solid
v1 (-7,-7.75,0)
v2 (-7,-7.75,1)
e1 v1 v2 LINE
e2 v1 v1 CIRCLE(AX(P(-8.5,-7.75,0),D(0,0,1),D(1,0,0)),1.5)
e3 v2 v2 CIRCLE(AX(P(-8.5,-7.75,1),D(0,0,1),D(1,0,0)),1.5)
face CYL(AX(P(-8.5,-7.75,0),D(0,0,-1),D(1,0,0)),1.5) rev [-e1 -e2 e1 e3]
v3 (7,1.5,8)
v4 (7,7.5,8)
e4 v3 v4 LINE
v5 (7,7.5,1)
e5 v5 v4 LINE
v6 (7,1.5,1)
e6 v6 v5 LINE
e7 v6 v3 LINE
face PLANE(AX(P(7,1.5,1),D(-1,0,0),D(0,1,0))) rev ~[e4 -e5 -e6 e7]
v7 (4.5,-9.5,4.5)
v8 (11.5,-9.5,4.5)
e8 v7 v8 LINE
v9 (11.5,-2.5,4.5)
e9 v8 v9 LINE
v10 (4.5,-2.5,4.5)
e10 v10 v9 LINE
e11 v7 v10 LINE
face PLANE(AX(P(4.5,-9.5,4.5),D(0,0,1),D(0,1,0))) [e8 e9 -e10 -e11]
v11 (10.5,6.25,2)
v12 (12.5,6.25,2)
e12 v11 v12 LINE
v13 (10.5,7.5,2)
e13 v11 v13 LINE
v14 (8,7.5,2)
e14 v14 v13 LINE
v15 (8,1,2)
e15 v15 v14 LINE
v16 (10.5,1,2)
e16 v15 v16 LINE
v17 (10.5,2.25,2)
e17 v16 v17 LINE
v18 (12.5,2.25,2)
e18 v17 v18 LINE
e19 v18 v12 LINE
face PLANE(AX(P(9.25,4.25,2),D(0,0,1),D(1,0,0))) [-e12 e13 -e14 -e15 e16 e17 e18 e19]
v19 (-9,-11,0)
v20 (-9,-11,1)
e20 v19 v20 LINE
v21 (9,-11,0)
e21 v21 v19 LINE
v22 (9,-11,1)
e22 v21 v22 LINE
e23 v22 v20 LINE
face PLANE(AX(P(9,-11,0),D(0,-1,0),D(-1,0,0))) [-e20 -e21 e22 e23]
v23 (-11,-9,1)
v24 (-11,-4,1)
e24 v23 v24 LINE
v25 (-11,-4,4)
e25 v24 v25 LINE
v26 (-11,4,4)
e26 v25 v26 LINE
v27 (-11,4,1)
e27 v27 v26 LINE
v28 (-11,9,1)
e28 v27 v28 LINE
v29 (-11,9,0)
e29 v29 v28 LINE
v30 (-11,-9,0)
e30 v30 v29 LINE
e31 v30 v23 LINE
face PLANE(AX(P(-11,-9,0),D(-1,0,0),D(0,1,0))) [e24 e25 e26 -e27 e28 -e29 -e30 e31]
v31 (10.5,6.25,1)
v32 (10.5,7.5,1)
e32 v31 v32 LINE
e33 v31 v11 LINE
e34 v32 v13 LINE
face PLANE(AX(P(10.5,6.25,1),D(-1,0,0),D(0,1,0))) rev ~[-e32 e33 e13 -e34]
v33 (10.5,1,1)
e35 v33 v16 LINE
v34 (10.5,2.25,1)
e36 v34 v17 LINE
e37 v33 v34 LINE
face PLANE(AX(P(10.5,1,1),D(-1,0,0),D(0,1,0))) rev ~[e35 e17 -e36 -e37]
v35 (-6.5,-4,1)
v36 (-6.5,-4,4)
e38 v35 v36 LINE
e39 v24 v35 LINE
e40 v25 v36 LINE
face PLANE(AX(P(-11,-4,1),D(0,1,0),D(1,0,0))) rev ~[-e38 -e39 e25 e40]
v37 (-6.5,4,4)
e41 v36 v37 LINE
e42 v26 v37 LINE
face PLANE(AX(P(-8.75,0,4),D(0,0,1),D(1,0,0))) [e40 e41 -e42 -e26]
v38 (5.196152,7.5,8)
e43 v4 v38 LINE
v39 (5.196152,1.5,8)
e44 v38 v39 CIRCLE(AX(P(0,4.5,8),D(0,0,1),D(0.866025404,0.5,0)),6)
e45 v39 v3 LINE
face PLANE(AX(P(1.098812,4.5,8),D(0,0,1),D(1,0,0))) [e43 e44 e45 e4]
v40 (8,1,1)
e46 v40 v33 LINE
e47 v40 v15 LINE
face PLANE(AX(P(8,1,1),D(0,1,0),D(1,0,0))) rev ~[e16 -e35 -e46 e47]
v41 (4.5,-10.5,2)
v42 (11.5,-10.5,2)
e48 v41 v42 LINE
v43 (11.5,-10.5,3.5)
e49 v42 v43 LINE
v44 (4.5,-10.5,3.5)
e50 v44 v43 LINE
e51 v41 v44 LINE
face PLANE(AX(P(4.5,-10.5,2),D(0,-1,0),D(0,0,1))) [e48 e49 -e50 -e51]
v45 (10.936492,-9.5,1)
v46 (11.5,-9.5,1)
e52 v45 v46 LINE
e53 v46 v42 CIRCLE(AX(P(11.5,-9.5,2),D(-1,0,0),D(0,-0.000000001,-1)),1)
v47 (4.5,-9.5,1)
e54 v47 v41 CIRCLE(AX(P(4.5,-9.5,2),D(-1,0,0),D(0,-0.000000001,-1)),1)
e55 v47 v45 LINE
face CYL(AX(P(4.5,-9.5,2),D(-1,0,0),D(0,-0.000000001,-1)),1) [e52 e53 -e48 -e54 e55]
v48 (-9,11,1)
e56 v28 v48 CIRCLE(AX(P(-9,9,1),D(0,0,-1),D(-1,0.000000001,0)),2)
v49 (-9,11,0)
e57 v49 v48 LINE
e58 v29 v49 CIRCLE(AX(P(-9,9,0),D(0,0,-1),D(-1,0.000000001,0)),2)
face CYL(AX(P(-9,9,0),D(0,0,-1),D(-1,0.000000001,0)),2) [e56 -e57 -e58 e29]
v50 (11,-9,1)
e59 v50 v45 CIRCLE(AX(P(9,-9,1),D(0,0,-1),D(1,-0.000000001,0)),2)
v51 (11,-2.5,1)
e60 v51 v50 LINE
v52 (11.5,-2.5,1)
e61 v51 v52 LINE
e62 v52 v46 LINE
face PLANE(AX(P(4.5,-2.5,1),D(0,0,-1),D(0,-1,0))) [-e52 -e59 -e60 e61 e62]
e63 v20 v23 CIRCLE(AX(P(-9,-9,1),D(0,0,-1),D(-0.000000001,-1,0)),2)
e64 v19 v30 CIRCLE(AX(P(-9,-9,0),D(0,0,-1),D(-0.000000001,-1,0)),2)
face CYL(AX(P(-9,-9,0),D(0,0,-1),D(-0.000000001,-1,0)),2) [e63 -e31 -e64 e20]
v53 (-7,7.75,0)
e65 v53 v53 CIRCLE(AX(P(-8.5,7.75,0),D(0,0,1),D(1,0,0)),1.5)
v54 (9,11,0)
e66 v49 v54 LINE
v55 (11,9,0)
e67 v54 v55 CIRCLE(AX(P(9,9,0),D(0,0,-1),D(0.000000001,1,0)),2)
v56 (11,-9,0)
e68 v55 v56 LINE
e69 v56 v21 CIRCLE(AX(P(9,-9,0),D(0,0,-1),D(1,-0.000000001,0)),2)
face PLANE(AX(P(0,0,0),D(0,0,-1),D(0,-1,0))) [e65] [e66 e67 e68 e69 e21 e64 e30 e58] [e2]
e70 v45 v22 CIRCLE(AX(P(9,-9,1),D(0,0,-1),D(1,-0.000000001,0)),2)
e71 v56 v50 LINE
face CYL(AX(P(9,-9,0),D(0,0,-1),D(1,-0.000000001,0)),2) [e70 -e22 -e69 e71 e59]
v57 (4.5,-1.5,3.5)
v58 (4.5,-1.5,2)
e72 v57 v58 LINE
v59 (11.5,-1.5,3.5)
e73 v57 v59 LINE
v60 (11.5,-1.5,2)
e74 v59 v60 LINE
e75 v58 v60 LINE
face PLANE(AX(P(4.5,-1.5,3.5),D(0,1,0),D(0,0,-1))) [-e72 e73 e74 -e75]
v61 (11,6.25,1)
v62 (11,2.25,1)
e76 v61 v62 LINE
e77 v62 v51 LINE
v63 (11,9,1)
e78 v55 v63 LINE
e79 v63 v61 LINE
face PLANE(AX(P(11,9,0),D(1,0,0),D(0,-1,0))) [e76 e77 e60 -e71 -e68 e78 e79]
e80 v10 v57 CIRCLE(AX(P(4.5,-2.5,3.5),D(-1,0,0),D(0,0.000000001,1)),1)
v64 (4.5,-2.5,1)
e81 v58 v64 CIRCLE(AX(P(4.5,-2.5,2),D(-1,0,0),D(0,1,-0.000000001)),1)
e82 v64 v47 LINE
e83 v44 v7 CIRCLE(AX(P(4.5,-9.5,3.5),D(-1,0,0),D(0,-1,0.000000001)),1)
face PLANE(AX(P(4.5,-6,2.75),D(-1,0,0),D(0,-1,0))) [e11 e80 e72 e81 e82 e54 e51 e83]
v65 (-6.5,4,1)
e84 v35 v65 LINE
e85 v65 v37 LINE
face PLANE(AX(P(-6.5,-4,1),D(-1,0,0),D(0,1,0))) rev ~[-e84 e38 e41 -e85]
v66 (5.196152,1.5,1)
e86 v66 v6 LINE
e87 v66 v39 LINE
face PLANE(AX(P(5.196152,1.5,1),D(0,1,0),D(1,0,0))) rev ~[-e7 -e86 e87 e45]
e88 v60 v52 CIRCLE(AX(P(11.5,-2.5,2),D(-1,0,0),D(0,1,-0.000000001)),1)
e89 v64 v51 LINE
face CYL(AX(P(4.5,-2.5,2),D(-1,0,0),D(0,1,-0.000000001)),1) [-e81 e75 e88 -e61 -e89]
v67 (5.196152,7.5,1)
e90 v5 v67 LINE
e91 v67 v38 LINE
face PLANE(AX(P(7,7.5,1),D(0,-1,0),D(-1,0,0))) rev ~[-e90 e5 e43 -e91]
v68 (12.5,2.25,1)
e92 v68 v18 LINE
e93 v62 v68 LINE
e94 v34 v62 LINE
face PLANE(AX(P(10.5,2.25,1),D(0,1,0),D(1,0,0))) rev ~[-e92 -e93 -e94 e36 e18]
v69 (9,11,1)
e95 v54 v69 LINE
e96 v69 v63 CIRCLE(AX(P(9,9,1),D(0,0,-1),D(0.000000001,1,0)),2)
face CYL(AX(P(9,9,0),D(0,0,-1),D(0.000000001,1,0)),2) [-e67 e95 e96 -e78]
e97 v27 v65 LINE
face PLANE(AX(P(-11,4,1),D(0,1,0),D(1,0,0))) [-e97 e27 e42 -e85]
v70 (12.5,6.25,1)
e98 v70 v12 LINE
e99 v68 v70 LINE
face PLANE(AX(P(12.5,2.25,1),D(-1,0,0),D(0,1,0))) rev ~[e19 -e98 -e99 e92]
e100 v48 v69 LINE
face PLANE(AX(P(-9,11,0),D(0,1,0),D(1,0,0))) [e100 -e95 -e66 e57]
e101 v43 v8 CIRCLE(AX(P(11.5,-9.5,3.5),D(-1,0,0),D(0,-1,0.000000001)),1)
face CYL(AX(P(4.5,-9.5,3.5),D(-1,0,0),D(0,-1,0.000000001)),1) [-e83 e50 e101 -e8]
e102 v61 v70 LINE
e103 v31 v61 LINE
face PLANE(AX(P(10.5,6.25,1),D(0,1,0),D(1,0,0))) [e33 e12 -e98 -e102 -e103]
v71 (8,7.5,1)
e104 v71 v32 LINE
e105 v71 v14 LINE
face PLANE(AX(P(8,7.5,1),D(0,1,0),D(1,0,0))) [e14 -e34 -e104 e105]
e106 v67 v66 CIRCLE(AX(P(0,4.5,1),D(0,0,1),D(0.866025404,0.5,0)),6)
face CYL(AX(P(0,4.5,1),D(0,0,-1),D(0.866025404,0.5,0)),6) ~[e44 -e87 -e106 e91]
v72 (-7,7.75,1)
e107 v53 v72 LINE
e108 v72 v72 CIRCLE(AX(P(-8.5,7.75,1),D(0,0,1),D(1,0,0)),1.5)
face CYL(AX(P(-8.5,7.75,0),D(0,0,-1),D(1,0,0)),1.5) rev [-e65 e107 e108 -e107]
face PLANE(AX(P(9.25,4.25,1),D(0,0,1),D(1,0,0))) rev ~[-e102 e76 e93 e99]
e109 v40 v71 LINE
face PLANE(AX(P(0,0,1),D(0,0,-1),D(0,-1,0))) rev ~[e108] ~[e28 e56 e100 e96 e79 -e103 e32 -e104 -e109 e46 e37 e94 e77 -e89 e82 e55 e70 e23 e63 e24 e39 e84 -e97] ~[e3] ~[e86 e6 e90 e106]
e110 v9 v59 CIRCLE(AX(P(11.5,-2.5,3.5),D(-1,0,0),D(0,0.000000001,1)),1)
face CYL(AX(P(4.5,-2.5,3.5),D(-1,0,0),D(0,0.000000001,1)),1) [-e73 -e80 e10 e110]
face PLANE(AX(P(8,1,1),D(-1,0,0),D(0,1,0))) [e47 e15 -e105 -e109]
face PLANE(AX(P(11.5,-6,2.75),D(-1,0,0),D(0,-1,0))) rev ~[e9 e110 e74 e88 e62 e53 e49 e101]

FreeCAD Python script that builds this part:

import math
import FreeCAD as App
import Part
import Sketcher

V = App.Vector

doc = App.newDocument("Part")
body = doc.addObject("PartDesign::Body", "Body")

sketch1 = doc.addObject("Sketcher::SketchObject", "Sketch")
body.addObject(sketch1)
sketch1.AttachmentSupport = (doc.XY_Plane, [""])
sketch1.MapMode = "FlatFace"
sketch1.addGeometry([
    Part.LineSegment(V(-11, 9, 0), V(-11, -9, 0)),
    Part.ArcOfCircle(Part.Circle(V(-9, -9, 0), V(0, 0, 1), 2), math.radians(-180), math.radians(-90)),
    Part.LineSegment(V(-9, -11, 0), V(9, -11, 0)),
    Part.ArcOfCircle(Part.Circle(V(9, -9, 0), V(0, 0, 1), 2), math.radians(-90), math.radians(0)),
    Part.LineSegment(V(11, -9, 0), V(11, 9, 0)),
    Part.ArcOfCircle(Part.Circle(V(9, 9, 0), V(0, 0, 1), 2), math.radians(0), math.radians(90)),
    Part.LineSegment(V(9, 11, 0), V(-9, 11, 0)),
    Part.ArcOfCircle(Part.Circle(V(-9, 9, 0), V(0, 0, 1), 2), math.radians(90), math.radians(180)),
    Part.Circle(V(-8.5, 7.8, 0), V(0, 0, 1), 1.5),
    Part.Circle(V(-8.5, -7.8, 0), V(0, 0, 1), 1.5),
], False)
sketch1.addConstraint([
    Sketcher.Constraint("Tangent", 0, 2, 1, 1),
    Sketcher.Constraint("Tangent", 1, 2, 2, 1),
    Sketcher.Constraint("Tangent", 2, 2, 3, 1),
    Sketcher.Constraint("Tangent", 3, 2, 4, 1),
    Sketcher.Constraint("Tangent", 4, 2, 5, 1),
    Sketcher.Constraint("Tangent", 5, 2, 6, 1),
    Sketcher.Constraint("Tangent", 6, 2, 7, 1),
    Sketcher.Constraint("Tangent", 7, 2, 0, 1),
    Sketcher.Constraint("Vertical", 0),
    Sketcher.Constraint("Horizontal", 2),
    Sketcher.Constraint("Vertical", 4),
    Sketcher.Constraint("Horizontal", 6),
    Sketcher.Constraint("Equal", 1, 3),
    Sketcher.Constraint("Equal", 3, 5),
    Sketcher.Constraint("Equal", 5, 7),
    Sketcher.Constraint("Equal", 8, 9),
    Sketcher.Constraint("Symmetric", 1, 3, 5, 3, -1, 1),
    Sketcher.Constraint("Symmetric", 8, 3, 9, 3, -1),
    Sketcher.Constraint("Equal", 6, 0),
    Sketcher.Constraint("Diameter", 8, 3.0),
    Sketcher.Constraint("Radius", 1, 2.0),
    Sketcher.Constraint("DistanceX", 2, 1, 2, 2, 18.0),
    Sketcher.Constraint("DistanceX", 8, 3, -1, 1, 8.5),
    Sketcher.Constraint("DistanceY", 9, 3, 8, 3, 15.5),
])
pad1 = doc.addObject("PartDesign::Pad", "Pad")
body.addObject(pad1)
pad1.Profile = sketch1
pad1.Length = 1

sketch2 = doc.addObject("Sketcher::SketchObject", "Sketch001")
body.addObject(sketch2)
sketch2.AttachmentSupport = (doc.XY_Plane, [""])
sketch2.MapMode = "FlatFace"
sketch2.AttachmentOffset = App.Placement(V(0, 0, 1), App.Rotation())
sketch2.addGeometry([
    Part.LineSegment(V(-11, 4, 0), V(-11, -4, 0)),
    Part.LineSegment(V(-11, -4, 0), V(-6.5, -4, 0)),
    Part.LineSegment(V(-6.5, -4, 0), V(-6.5, 4, 0)),
    Part.LineSegment(V(-6.5, 4, 0), V(-11, 4, 0)),
], False)
sketch2.addConstraint([
    Sketcher.Constraint("Coincident", 0, 2, 1, 1),
    Sketcher.Constraint("Coincident", 1, 2, 2, 1),
    Sketcher.Constraint("Coincident", 2, 2, 3, 1),
    Sketcher.Constraint("Coincident", 3, 2, 0, 1),
    Sketcher.Constraint("Vertical", 0),
    Sketcher.Constraint("Horizontal", 1),
    Sketcher.Constraint("Vertical", 2),
    Sketcher.Constraint("Horizontal", 3),
    Sketcher.Constraint("DistanceY", 0, 2, 0, 1, 8.0),
    Sketcher.Constraint("DistanceX", 1, 1, 1, 2, 4.5),
    Sketcher.Constraint("DistanceX", 0, 2, -1, 1, 11.0),
    Sketcher.Constraint("DistanceY", 0, 2, -1, 1, 4.0),
])
pad2 = doc.addObject("PartDesign::Pad", "Pad001")
body.addObject(pad2)
pad2.Profile = sketch2
pad2.Length = 3

sketch3 = doc.addObject("Sketcher::SketchObject", "Sketch002")
body.addObject(sketch3)
sketch3.AttachmentSupport = (doc.XY_Plane, [""])
sketch3.MapMode = "FlatFace"
sketch3.AttachmentOffset = App.Placement(V(0, 0, 1), App.Rotation())
sketch3.addGeometry([
    Part.LineSegment(V(7, 7.5, 0), V(5.2, 7.5, 0)),
    Part.ArcOfCircle(Part.Circle(V(0, 4.5, 0), V(0, 0, 1), 6), math.radians(30), math.radians(330)),
    Part.LineSegment(V(5.2, 1.5, 0), V(7, 1.5, 0)),
    Part.LineSegment(V(7, 1.5, 0), V(7, 7.5, 0)),
], False)
sketch3.addConstraint([
    Sketcher.Constraint("Coincident", 0, 2, 1, 1),
    Sketcher.Constraint("Coincident", 1, 2, 2, 1),
    Sketcher.Constraint("Coincident", 2, 2, 3, 1),
    Sketcher.Constraint("Coincident", 3, 2, 0, 1),
    Sketcher.Constraint("Horizontal", 0),
    Sketcher.Constraint("Horizontal", 2),
    Sketcher.Constraint("Vertical", 3),
    Sketcher.Constraint("PointOnObject", 1, 3, -2),
    Sketcher.Constraint("Vertical", 0, 2, 1, 2),
    Sketcher.Constraint("Radius", 1, 6.0),
    Sketcher.Constraint("DistanceY", 3, 1, 3, 2, 6.0),
    Sketcher.Constraint("DistanceX", -1, 1, 2, 2, 7.0),
    Sketcher.Constraint("DistanceY", -1, 1, 1, 3, 4.5),
])
pad3 = doc.addObject("PartDesign::Pad", "Pad002")
body.addObject(pad3)
pad3.Profile = sketch3
pad3.Length = 7

sketch4 = doc.addObject("Sketcher::SketchObject", "Sketch003")
body.addObject(sketch4)
sketch4.AttachmentSupport = (doc.YZ_Plane, [""])
sketch4.MapMode = "FlatFace"
sketch4.AttachmentOffset = App.Placement(V(0, 0, 11), App.Rotation())
sketch4.addGeometry([
    Part.LineSegment(V(-2.5, 4.5, 0), V(-9.5, 4.5, 0)),
    Part.ArcOfCircle(Part.Circle(V(-9.5, 3.5, 0), V(0, 0, 1), 1), math.radians(90), math.radians(180)),
    Part.LineSegment(V(-10.5, 3.5, 0), V(-10.5, 2, 0)),
    Part.ArcOfCircle(Part.Circle(V(-9.5, 2, 0), V(0, 0, 1), 1), math.radians(-180), math.radians(-90)),
    Part.LineSegment(V(-9.5, 1, 0), V(-2.5, 1, 0)),
    Part.ArcOfCircle(Part.Circle(V(-2.5, 2, 0), V(0, 0, 1), 1), math.radians(-90), math.radians(0)),
    Part.LineSegment(V(-1.5, 2, 0), V(-1.5, 3.5, 0)),
    Part.ArcOfCircle(Part.Circle(V(-2.5, 3.5, 0), V(0, 0, 1), 1), math.radians(0), math.radians(90)),
], False)
sketch4.addConstraint([
    Sketcher.Constraint("Tangent", 0, 2, 1, 1),
    Sketcher.Constraint("Tangent", 1, 2, 2, 1),
    Sketcher.Constraint("Tangent", 2, 2, 3, 1),
    Sketcher.Constraint("Tangent", 3, 2, 4, 1),
    Sketcher.Constraint("Tangent", 4, 2, 5, 1),
    Sketcher.Constraint("Tangent", 5, 2, 6, 1),
    Sketcher.Constraint("Tangent", 6, 2, 7, 1),
    Sketcher.Constraint("Tangent", 7, 2, 0, 1),
    Sketcher.Constraint("Horizontal", 0),
    Sketcher.Constraint("Vertical", 2),
    Sketcher.Constraint("Horizontal", 4),
    Sketcher.Constraint("Vertical", 6),
    Sketcher.Constraint("Equal", 1, 3),
    Sketcher.Constraint("Equal", 3, 5),
    Sketcher.Constraint("Equal", 5, 7),
    Sketcher.Constraint("Radius", 1, 1.0),
    Sketcher.Constraint("DistanceX", 0, 2, 0, 1, 7.0),
    Sketcher.Constraint("DistanceY", 2, 2, 2, 1, 1.5),
    Sketcher.Constraint("DistanceY", -1, 1, 3, 3, 2.0),
    Sketcher.Constraint("DistanceX", 1, 3, -1, 1, 9.5),
])
pad4 = doc.addObject("PartDesign::Pad", "Pad003")
body.addObject(pad4)
pad4.Profile = sketch4
pad4.Type = "TwoLengths"
pad4.Length = 0.5
pad4.Length2 = 6.5

sketch5 = doc.addObject("Sketcher::SketchObject", "Sketch004")
body.addObject(sketch5)
sketch5.AttachmentSupport = (doc.XY_Plane, [""])
sketch5.MapMode = "FlatFace"
sketch5.AttachmentOffset = App.Placement(V(0, 0, 1), App.Rotation())
sketch5.addGeometry([
    Part.LineSegment(V(8, 7.5, 0), V(8, 1, 0)),
    Part.LineSegment(V(8, 1, 0), V(10.5, 1, 0)),
    Part.LineSegment(V(10.5, 1, 0), V(10.5, 2.2, 0)),
    Part.LineSegment(V(10.5, 2.2, 0), V(12.5, 2.2, 0)),
    Part.LineSegment(V(12.5, 2.2, 0), V(12.5, 6.2, 0)),
    Part.LineSegment(V(12.5, 6.2, 0), V(10.5, 6.2, 0)),
    Part.LineSegment(V(10.5, 6.2, 0), V(10.5, 7.5, 0)),
    Part.LineSegment(V(10.5, 7.5, 0), V(8, 7.5, 0)),
], False)
sketch5.addConstraint([
    Sketcher.Constraint("Coincident", 0, 2, 1, 1),
    Sketcher.Constraint("Coincident", 1, 2, 2, 1),
    Sketcher.Constraint("Coincident", 2, 2, 3, 1),
    Sketcher.Constraint("Coincident", 3, 2, 4, 1),
    Sketcher.Constraint("Coincident", 4, 2, 5, 1),
    Sketcher.Constraint("Coincident", 5, 2, 6, 1),
    Sketcher.Constraint("Coincident", 6, 2, 7, 1),
    Sketcher.Constraint("Coincident", 7, 2, 0, 1),
    Sketcher.Constraint("Vertical", 0),
    Sketcher.Constraint("Horizontal", 1),
    Sketcher.Constraint("Vertical", 2),
    Sketcher.Constraint("Horizontal", 3),
    Sketcher.Constraint("Vertical", 4),
    Sketcher.Constraint("Horizontal", 5),
    Sketcher.Constraint("Vertical", 6),
    Sketcher.Constraint("Horizontal", 7),
    Sketcher.Constraint("Vertical", 2, 2, 5, 2),
    Sketcher.Constraint("Equal", 2, 6),
    Sketcher.Constraint("DistanceX", 3, 1, 3, 2, 2.0),
    Sketcher.Constraint("DistanceY", 4, 1, 4, 2, 4.0),
    Sketcher.Constraint("DistanceX", 1, 1, 1, 2, 2.5),
    Sketcher.Constraint("DistanceY", 0, 2, 0, 1, 6.5),
    Sketcher.Constraint("DistanceX", -1, 1, 0, 2, 8.0),
    Sketcher.Constraint("DistanceY", -1, 1, 0, 2, 1.0),
])
pad5 = doc.addObject("PartDesign::Pad", "Pad004")
body.addObject(pad5)
pad5.Profile = sketch5
pad5.Length = 1

doc.recompute()
